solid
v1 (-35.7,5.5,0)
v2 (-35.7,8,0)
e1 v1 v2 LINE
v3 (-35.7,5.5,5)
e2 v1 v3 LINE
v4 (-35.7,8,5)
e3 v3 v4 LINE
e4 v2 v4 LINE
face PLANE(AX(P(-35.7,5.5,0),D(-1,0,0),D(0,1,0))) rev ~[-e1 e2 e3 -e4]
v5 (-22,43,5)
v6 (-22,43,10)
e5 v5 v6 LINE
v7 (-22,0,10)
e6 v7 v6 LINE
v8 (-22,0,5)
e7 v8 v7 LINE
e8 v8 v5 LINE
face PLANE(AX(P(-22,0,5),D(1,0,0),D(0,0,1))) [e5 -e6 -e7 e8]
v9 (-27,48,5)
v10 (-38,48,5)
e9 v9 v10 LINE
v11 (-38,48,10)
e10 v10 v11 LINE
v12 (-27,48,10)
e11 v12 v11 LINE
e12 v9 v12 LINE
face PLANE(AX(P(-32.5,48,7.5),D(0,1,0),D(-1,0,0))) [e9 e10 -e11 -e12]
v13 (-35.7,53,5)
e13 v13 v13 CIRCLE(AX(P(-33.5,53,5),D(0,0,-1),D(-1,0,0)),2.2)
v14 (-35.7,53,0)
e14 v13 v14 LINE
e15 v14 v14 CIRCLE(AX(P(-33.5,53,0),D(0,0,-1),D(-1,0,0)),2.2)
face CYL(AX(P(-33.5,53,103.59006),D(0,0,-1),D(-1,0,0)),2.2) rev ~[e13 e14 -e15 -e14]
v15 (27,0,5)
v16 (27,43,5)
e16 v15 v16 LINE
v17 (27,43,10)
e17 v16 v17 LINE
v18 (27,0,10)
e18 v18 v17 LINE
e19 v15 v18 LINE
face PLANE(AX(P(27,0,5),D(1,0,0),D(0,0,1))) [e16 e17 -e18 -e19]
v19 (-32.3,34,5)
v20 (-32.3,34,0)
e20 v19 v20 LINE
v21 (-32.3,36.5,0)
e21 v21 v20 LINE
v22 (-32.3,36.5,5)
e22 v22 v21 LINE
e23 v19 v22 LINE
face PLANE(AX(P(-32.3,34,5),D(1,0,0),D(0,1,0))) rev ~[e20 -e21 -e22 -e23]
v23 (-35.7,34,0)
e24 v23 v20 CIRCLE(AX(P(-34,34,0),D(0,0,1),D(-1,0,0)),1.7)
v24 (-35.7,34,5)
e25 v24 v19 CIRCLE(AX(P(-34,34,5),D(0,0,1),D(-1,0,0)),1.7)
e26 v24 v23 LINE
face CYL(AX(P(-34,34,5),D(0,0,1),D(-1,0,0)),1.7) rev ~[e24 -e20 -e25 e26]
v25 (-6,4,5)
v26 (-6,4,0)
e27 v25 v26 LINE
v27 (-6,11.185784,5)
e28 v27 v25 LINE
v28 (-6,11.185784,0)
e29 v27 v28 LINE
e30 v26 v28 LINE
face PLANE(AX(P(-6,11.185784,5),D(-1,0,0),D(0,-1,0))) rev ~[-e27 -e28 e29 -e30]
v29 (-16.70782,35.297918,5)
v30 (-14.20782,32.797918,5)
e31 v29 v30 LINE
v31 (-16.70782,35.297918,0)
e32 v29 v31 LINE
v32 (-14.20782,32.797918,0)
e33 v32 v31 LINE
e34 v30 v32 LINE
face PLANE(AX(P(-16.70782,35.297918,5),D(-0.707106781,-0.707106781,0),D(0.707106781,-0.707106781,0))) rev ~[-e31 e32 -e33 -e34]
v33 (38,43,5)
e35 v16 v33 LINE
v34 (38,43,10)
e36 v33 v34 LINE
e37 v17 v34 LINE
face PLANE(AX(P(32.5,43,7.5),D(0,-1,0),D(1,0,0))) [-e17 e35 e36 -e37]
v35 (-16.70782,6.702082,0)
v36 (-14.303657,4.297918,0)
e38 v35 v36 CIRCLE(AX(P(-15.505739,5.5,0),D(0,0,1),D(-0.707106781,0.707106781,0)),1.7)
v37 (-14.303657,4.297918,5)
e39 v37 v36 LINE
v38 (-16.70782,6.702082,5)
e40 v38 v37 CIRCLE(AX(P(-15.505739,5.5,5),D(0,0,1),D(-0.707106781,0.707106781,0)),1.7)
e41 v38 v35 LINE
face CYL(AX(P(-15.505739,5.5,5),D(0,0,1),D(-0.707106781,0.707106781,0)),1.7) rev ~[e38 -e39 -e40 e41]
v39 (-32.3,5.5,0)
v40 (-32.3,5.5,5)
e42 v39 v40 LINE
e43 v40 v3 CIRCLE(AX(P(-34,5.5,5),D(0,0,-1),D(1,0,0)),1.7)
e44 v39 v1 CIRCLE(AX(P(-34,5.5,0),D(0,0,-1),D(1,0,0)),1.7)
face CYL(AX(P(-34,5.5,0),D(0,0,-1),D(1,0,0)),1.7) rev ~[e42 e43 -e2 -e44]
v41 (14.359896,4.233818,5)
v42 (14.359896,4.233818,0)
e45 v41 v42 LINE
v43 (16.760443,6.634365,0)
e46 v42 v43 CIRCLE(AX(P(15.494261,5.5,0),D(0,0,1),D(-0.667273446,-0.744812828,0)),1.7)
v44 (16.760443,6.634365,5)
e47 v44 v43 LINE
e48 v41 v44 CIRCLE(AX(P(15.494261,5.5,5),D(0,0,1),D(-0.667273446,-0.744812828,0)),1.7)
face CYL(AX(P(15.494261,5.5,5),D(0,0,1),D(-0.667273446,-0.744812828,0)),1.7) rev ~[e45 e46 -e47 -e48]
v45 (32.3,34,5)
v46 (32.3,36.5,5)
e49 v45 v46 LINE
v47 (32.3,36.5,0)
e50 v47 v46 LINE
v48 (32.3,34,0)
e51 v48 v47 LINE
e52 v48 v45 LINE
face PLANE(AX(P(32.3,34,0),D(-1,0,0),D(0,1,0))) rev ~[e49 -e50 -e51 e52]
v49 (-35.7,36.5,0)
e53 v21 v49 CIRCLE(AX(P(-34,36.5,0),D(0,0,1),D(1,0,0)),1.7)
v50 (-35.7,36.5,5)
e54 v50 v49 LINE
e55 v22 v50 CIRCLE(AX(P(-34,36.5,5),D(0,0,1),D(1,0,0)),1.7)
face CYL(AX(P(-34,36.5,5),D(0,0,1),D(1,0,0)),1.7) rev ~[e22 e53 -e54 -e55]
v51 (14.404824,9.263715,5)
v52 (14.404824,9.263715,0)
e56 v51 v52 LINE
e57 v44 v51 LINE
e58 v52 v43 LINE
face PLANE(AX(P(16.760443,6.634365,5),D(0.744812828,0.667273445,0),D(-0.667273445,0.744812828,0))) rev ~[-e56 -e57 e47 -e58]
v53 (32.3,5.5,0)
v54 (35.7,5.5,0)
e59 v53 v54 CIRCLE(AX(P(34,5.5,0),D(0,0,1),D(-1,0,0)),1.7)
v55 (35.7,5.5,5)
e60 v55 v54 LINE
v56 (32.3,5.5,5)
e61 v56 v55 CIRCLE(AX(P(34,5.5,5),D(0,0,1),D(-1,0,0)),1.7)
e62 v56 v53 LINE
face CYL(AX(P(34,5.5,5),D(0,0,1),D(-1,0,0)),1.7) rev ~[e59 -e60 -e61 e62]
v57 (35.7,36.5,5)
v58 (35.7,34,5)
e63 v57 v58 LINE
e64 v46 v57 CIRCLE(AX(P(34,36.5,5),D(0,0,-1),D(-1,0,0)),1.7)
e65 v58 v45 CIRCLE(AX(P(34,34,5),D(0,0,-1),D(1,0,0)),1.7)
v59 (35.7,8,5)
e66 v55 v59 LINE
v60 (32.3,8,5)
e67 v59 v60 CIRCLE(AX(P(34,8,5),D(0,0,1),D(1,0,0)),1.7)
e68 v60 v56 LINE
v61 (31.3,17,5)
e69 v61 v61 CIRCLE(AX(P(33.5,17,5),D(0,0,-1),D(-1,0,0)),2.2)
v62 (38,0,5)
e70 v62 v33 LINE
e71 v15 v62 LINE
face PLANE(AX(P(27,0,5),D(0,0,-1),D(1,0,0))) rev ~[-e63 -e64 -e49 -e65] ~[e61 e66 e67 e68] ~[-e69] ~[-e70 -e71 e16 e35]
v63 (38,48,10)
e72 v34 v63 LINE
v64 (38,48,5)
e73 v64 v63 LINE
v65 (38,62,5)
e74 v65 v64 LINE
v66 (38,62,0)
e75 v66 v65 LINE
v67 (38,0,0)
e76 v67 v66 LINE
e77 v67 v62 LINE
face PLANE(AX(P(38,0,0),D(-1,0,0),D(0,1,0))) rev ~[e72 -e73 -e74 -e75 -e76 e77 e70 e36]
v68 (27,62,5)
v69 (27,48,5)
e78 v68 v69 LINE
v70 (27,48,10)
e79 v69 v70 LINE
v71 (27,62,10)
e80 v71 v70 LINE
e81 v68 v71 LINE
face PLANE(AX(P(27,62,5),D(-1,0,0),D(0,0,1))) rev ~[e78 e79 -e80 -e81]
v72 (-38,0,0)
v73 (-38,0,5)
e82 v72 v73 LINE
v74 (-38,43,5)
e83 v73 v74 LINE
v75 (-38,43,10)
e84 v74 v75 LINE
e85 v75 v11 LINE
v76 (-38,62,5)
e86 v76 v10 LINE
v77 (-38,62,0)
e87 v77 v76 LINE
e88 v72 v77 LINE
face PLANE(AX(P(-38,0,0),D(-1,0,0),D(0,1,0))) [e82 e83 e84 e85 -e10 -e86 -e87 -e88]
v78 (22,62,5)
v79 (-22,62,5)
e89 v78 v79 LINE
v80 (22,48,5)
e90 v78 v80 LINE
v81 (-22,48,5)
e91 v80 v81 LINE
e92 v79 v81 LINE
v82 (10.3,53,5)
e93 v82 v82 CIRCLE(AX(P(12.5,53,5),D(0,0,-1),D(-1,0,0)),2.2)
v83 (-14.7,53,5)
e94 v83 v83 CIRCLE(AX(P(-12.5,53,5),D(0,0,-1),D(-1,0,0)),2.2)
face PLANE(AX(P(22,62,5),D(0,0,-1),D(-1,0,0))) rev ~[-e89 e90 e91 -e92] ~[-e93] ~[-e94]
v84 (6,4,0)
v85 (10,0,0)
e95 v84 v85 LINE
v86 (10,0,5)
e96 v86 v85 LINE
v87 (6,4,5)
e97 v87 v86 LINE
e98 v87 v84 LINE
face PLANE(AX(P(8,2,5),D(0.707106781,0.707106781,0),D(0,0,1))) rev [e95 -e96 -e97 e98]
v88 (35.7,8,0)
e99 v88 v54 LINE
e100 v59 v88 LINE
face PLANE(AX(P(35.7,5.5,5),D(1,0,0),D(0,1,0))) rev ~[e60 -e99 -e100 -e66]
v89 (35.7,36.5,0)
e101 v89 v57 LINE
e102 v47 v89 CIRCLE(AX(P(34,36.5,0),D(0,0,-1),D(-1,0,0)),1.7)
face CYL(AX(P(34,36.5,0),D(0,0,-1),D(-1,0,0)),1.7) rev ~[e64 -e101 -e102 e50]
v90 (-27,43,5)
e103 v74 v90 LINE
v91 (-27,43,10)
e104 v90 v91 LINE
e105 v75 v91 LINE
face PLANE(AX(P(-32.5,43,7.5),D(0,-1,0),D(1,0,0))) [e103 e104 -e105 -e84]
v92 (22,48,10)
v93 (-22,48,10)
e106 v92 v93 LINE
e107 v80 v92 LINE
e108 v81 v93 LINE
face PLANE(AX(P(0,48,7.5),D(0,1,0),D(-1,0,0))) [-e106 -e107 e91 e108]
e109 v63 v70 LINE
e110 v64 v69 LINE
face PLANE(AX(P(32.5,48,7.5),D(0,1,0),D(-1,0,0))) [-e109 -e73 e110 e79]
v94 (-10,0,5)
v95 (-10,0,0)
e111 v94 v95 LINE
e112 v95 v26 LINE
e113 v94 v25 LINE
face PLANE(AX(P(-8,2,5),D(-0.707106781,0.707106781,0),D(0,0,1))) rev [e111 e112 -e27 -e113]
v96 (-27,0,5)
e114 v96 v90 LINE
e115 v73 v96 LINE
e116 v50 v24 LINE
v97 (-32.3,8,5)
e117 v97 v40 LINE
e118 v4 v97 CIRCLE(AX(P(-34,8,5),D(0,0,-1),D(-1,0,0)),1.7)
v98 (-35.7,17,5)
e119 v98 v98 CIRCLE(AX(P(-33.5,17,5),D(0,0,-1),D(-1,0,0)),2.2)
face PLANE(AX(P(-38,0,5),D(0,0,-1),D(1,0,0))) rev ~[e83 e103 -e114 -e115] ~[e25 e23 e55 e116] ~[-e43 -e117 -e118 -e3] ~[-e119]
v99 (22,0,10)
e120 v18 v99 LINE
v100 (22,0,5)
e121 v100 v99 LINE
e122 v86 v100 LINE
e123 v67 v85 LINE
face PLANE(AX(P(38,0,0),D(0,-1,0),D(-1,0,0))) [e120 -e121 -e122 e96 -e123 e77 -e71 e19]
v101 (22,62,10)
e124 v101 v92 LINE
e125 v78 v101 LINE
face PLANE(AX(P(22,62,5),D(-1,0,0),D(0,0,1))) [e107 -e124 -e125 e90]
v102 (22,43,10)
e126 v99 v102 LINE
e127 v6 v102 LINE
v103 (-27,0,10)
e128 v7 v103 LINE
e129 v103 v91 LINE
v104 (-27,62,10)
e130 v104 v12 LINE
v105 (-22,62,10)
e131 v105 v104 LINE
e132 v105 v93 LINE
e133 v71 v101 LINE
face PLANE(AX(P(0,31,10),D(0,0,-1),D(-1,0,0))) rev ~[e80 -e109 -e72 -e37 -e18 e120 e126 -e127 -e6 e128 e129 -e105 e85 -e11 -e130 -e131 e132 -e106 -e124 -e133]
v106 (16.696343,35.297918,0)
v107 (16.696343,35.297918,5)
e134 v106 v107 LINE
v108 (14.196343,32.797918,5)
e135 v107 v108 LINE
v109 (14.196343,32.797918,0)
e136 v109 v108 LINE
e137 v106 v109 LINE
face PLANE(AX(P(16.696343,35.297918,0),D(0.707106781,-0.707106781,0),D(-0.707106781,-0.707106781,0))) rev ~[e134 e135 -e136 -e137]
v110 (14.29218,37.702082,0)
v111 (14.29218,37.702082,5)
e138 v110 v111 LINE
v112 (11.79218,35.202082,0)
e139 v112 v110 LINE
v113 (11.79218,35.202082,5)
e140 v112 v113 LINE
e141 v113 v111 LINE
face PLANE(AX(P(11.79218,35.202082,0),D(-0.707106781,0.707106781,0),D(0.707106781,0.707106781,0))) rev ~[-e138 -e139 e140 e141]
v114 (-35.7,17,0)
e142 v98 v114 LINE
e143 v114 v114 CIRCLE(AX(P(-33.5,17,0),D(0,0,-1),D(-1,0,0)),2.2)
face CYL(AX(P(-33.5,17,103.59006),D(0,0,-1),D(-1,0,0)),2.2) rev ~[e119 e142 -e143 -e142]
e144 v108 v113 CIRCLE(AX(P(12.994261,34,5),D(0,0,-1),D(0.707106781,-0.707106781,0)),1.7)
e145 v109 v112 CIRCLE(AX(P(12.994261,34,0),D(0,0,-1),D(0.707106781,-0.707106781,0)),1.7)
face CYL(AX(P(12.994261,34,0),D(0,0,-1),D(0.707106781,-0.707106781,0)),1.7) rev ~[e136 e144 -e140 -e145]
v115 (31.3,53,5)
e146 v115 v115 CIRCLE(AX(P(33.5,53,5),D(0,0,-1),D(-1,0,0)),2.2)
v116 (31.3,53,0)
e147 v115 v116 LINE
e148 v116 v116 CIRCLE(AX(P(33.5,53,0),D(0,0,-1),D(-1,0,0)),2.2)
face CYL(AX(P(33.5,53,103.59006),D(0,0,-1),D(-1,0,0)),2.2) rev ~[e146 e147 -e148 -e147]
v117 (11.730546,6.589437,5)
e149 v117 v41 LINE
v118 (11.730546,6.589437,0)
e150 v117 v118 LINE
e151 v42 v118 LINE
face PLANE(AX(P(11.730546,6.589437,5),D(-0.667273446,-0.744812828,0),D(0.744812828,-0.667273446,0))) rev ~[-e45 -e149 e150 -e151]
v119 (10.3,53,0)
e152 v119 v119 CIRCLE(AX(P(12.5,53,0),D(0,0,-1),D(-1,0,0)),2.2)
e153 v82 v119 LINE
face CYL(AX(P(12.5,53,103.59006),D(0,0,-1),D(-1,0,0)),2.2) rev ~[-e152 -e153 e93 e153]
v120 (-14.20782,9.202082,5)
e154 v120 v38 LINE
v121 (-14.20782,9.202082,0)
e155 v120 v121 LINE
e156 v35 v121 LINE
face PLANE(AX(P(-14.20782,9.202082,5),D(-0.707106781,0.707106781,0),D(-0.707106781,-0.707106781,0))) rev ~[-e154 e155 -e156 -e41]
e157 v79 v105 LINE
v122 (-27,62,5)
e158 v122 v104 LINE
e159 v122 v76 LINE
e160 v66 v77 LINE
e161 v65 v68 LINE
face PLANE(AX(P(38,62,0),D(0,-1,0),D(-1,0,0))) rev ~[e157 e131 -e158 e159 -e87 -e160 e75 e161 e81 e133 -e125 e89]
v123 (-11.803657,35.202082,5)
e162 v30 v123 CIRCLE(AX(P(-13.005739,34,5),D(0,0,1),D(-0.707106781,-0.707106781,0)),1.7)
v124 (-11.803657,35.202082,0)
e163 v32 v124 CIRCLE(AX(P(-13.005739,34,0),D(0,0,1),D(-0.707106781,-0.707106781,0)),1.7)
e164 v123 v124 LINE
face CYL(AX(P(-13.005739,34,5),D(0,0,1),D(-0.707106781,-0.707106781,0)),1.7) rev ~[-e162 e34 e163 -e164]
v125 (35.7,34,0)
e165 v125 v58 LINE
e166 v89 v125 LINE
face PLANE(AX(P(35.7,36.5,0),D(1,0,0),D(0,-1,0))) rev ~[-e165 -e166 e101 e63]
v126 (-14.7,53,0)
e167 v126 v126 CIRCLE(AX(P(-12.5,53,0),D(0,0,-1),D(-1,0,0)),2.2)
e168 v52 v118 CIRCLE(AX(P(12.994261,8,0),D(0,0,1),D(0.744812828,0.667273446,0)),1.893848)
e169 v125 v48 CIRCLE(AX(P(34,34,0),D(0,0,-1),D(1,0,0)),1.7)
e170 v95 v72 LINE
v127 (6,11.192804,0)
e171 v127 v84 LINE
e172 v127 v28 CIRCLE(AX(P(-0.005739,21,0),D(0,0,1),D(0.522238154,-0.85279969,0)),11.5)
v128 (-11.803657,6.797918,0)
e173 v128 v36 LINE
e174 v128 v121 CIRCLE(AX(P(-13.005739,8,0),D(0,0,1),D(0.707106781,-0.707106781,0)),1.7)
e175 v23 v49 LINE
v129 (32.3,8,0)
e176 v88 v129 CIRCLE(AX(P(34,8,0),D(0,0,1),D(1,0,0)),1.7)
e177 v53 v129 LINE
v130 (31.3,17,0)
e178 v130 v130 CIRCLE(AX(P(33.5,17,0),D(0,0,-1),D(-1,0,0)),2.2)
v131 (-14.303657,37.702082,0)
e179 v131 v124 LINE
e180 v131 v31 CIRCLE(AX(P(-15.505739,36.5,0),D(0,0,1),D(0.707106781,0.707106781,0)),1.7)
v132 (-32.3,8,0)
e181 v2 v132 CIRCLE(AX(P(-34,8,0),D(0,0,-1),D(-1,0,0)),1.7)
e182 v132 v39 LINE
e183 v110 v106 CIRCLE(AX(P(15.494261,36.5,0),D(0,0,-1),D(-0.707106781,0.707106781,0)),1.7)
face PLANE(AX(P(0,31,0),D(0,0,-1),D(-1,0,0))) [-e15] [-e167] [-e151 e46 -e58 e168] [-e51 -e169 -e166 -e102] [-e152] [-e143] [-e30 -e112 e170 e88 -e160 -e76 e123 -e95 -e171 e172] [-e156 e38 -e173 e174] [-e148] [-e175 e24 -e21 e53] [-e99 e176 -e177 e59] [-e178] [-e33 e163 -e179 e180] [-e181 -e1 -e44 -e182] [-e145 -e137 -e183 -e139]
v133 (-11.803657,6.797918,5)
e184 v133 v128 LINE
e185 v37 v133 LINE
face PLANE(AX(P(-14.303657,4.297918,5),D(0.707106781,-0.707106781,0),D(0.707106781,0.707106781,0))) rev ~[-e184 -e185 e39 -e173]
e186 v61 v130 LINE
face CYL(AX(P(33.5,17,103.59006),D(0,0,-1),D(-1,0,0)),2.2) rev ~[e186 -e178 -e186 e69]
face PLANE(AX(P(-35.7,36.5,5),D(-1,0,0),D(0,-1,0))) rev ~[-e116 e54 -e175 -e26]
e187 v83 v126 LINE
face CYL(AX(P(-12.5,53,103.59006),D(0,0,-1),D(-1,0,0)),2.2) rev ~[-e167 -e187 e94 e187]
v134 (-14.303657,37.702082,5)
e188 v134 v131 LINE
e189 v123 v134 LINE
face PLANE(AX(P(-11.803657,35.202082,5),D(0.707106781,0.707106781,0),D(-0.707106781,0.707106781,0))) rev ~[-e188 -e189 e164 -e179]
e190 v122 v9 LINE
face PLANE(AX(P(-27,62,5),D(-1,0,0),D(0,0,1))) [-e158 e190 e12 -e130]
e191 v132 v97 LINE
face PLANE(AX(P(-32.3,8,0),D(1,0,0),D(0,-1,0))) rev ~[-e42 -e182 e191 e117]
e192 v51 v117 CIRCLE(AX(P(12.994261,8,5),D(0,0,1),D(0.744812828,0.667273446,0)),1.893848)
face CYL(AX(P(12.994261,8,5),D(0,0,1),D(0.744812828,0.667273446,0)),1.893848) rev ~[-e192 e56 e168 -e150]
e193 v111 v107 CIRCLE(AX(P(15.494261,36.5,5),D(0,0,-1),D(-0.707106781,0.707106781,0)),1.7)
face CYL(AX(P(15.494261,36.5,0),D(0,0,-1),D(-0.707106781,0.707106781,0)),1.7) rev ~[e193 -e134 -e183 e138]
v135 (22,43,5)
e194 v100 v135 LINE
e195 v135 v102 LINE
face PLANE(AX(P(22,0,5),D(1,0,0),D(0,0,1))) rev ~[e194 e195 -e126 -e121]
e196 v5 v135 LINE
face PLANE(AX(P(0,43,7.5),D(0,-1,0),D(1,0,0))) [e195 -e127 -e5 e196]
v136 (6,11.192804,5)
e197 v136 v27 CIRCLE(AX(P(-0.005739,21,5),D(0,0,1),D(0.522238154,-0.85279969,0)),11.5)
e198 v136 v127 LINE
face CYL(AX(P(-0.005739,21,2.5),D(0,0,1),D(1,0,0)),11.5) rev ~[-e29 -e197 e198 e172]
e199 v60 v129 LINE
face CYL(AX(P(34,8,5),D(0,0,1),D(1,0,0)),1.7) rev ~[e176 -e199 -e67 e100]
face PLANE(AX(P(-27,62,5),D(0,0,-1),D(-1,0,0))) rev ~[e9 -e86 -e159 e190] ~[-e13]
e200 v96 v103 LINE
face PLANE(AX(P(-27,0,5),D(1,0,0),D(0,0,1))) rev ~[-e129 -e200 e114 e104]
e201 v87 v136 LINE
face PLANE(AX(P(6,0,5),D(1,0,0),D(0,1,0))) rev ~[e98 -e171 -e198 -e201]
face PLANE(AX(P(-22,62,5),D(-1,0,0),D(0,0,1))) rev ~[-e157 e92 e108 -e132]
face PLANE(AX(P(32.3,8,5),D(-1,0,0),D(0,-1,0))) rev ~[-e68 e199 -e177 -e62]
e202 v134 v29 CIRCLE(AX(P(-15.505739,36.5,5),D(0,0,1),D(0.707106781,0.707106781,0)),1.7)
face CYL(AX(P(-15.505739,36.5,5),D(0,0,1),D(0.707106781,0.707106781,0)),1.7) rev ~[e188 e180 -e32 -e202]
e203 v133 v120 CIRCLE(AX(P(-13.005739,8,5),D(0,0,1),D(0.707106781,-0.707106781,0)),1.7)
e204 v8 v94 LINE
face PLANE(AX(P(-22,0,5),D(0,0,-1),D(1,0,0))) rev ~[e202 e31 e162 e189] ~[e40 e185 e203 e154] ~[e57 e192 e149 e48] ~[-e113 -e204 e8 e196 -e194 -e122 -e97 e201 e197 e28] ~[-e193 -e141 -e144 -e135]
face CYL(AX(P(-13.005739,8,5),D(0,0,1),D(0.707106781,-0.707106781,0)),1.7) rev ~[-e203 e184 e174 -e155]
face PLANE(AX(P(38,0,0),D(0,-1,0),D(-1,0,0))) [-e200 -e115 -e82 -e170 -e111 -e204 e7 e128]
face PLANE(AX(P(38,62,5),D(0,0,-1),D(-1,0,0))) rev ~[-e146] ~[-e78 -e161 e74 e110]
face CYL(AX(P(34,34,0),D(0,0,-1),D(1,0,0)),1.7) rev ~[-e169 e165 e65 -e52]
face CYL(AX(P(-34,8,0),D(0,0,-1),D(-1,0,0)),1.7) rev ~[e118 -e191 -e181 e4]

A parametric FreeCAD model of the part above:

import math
import FreeCAD as App
import Part
import Sketcher
from FreeCAD import Vector
Q = App.Units.Quantity


def edges_at(feature, points):
    """Names of the edges that pass closest to the given points."""
    edges = feature.Shape.Edges
    near = lambda p: min(range(len(edges)), key=lambda i: edges[i].distToShape(Part.Vertex(*p))[0])
    return sorted({f"Edge{near(p) + 1}" for p in points})


def add_polygon(sketch, points):
    """Adds a closed chain of lines whose ends are joined by coincident constraints."""
    first, n = sketch.GeometryCount, len(points)
    for a, b in zip(points, points[1:] + points[:1]):
        sketch.addGeometry(Part.LineSegment(App.Vector(*a, 0), App.Vector(*b, 0)), False)
    for i in range(n):
        sketch.addConstraint(Sketcher.Constraint("Coincident", first + i, 2, first + (i + 1) % n, 1))

doc = App.newDocument("Part")
params = doc.addObject("Spreadsheet::Sheet", "Params")
for row, (alias, value) in enumerate([
    ("sketch1_width", "76 mm"),
    ("sketch1_height", "62 mm"),
    ("pad1_length", "10 mm"),
    ("sketch2_width", "44 mm"),
    ("sketch2_height", "5 mm"),
    ("pocket1_length", "43 mm"),
    ("sketch3_radius", "11.5 mm"),
    ("sketch3_width", "12 mm"),
    ("sketch4_radius", "1.7 mm"),
    ("sketch5_radius", "1.7 mm"),
    ("sketch6_radius", "1.7 mm"),
    ("sketch7_radius", "1.7 mm"),
    ("sketch8_width", "11 mm"),
    ("sketch8_height", "5 mm"),
    ("pocket7_length", "43 mm"),
    ("sketch9_radius", "1.7 mm"),
    ("sketch9_height", "2.5 mm"),
    ("sketch10_width", "11 mm"),
    ("sketch10_height", "5 mm"),
    ("pocket9_length", "43 mm"),
    ("sketch11_radius", "1.7 mm"),
    ("sketch11_height", "2.5 mm"),
    ("sketch12_radius", "1.7 mm"),
    ("sketch12_height", "2.5 mm"),
    ("sketch13_radius", "1.7 mm"),
    ("sketch13_height", "2.5 mm"),
    ("sketch14_width", "11 mm"),
    ("sketch14_height", "5 mm"),
    ("pocket13_length", "14 mm"),
    ("sketch15_width", "11 mm"),
    ("sketch15_height", "5 mm"),
    ("pocket14_length", "14 mm"),
    ("sketch16_width", "44 mm"),
    ("sketch16_height", "5 mm"),
    ("pocket15_length", "14 mm"),
    ("sketch17_height", "5 mm"),
    ("sketch17_width", "11.5 mm"),
    ("groove_angle", "360 deg"),
    ("sketch18_diameter", "4.4 mm"),
    ("hole_diameter", "4.4 mm"),
    ("sketch19_diameter", "4.4 mm"),
    ("hole2_diameter", "4.4 mm"),
    ("sketch20_diameter", "4.4 mm"),
    ("hole3_diameter", "4.4 mm"),
    ("sketch21_diameter", "4.4 mm"),
    ("hole4_diameter", "4.4 mm"),
    ("sketch22_diameter", "4.4 mm"),
    ("hole5_diameter", "4.4 mm"),
    ("sketch23_diameter", "4.4 mm"),
    ("hole6_diameter", "4.4 mm"),
    ("chamfer_size", "4 mm"),
    ("chamfer2_size", "4 mm"),
], start=1):
    params.set(f"A{row}", alias)
    params.set(f"B{row}", "=" + value)
    params.setAlias(f"B{row}", alias)

body = doc.addObject("PartDesign::Body", "Body")

sketch1 = doc.addObject("Sketcher::SketchObject", "Sketch")
body.addObject(sketch1)
sketch1.AttachmentSupport = (doc.XY_Plane, [""])
sketch1.MapMode = "FlatFace"
add_polygon(sketch1, [(38, 62), (38, 0), (-38, 0), (-38, 62)])
sketch1.addConstraint([
    Sketcher.Constraint("Vertical", 0),
    Sketcher.Constraint("Horizontal", 1),
    Sketcher.Constraint("Vertical", 2),
    Sketcher.Constraint("Horizontal", 3),
    Sketcher.Constraint("Symmetric", 0, 2, 1, 2, -1, 1),
    Sketcher.Constraint("DistanceX", 1, 2, 1, 1, 76.0),
    Sketcher.Constraint("DistanceY", 0, 2, 0, 1, 62.0),
])
sketch1.setExpression("Constraints[9]", "Params.sketch1_width")
sketch1.setExpression("Constraints[10]", "Params.sketch1_height")
pad1 = doc.addObject("PartDesign::Pad", "Pad")
body.addObject(pad1)
pad1.Profile = sketch1
pad1.setExpression("Length", "Params.pad1_length")

sketch2 = doc.addObject("Sketcher::SketchObject", "Sketch001")
body.addObject(sketch2)
sketch2.AttachmentSupport = (doc.XZ_Plane, [""])
sketch2.MapMode = "FlatFace"
add_polygon(sketch2, [(-22, 10), (-22, 5), (22, 5), (22, 10)])
sketch2.addConstraint([
    Sketcher.Constraint("Vertical", 0),
    Sketcher.Constraint("Horizontal", 1),
    Sketcher.Constraint("Vertical", 2),
    Sketcher.Constraint("Horizontal", 3),
    Sketcher.Constraint("DistanceX", 1, 1, 1, 2, 44.0),
    Sketcher.Constraint("DistanceY", 0, 2, 0, 1, 5.0),
    Sketcher.Constraint("DistanceX", 0, 2, -1, 1, 22.0),
    Sketcher.Constraint("DistanceY", -1, 1, 0, 2, 5.0),
])
sketch2.setExpression("Constraints[8]", "Params.sketch2_width")
sketch2.setExpression("Constraints[9]", "Params.sketch2_height")
pocket1 = doc.addObject("PartDesign::Pocket", "Pocket")
body.addObject(pocket1)
pocket1.Profile = sketch2
pocket1.setExpression("Length", "Params.pocket1_length")

sketch3 = doc.addObject("Sketcher::SketchObject", "Sketch002")
body.addObject(sketch3)
sketch3.AttachmentSupport = (doc.XY_Plane, [""])
sketch3.MapMode = "FlatFace"
sketch3.AttachmentOffset = App.Placement(Vector(0, 0, 5), App.Rotation())
sketch3.addGeometry([
    Part.LineSegment(Vector(-6, 0, 0), Vector(6, 0, 0)),
    Part.LineSegment(Vector(6, 0, 0), Vector(6, 11, 0)),
    Part.ArcOfCircle(Part.Circle(Vector(0, 21, 0), Vector(0, 0, 1), 11), math.radians(-121), math.radians(-59)),
    Part.LineSegment(Vector(-6, 11, 0), Vector(-6, 0, 0)),
], False)
sketch3.addConstraint([
    Sketcher.Constraint("Coincident", 0, 2, 1, 1),
    Sketcher.Constraint("Coincident", 1, 2, 2, 2),
    Sketcher.Constraint("Coincident", 2, 1, 3, 1),
    Sketcher.Constraint("Coincident", 3, 2, 0, 1),
    Sketcher.Constraint("Horizontal", 0),
    Sketcher.Constraint("Vertical", 1),
    Sketcher.Constraint("Vertical", 3),
    Sketcher.Constraint("Symmetric", 0, 2, 3, 2, -1, 1),
    Sketcher.Constraint("Radius", 2, 11.5),
    Sketcher.Constraint("DistanceX", 0, 1, 0, 2, 12.0),
    Sketcher.Constraint("DistanceY", -1, 1, 2, 3, 21.0),
    Sketcher.Constraint("DistanceY", 1, 1, 1, 2, 11.192804),
])
sketch3.setExpression("Constraints[8]", "Params.sketch3_radius")
sketch3.setExpression("Constraints[9]", "Params.sketch3_width")
pocket2 = doc.addObject("PartDesign::Pocket", "Pocket001")
body.addObject(pocket2)
pocket2.Profile = sketch3
pocket2.Type = "ThroughAll"

sketch4 = doc.addObject("Sketcher::SketchObject", "Sketch003")
body.addObject(sketch4)
sketch4.AttachmentSupport = (doc.XY_Plane, [""])
sketch4.MapMode = "FlatFace"
sketch4.AttachmentOffset = App.Placement(Vector(0, 0, 5), App.Rotation())
sketch4.addGeometry([
    Part.LineSegment(Vector(-11.8, 35.2, 0), Vector(-14.3, 37.7, 0)),
    Part.ArcOfCircle(Part.Circle(Vector(-15.5, 36.5, 0), Vector(0, 0, 1), 1.7), math.radians(45), math.radians(225)),
    Part.LineSegment(Vector(-16.7, 35.3, 0), Vector(-14.2, 32.8, 0)),
    Part.ArcOfCircle(Part.Circle(Vector(-13, 34, 0), Vector(0, 0, 1), 1.7), math.radians(-135), math.radians(45)),
], False)
sketch4.addConstraint([
    Sketcher.Constraint("Tangent", 0, 2, 1, 1),
    Sketcher.Constraint("Tangent", 1, 2, 2, 1),
    Sketcher.Constraint("Tangent", 2, 2, 3, 1),
    Sketcher.Constraint("Tangent", 3, 2, 0, 1),
    Sketcher.Constraint("Equal", 1, 3),
    Sketcher.Constraint("Radius", 1, 1.7),
    Sketcher.Constraint("Angle", 0, Q("135 deg")),
    Sketcher.Constraint("DistanceY", -1, 1, 3, 3, 34.0),
    Sketcher.Constraint("DistanceY", -1, 1, 1, 3, 36.5),
    Sketcher.Constraint("DistanceX", 1, 3, -1, 1, 15.505739),
])
sketch4.setExpression("Constraints[5]", "Params.sketch4_radius")
pocket3 = doc.addObject("PartDesign::Pocket", "Pocket002")
body.addObject(pocket3)
pocket3.Profile = sketch4
pocket3.Type = "ThroughAll"

sketch5 = doc.addObject("Sketcher::SketchObject", "Sketch004")
body.addObject(sketch5)
sketch5.AttachmentSupport = (doc.XY_Plane, [""])
sketch5.MapMode = "FlatFace"
sketch5.AttachmentOffset = App.Placement(Vector(0, 0, 5), App.Rotation())
sketch5.addGeometry([
    Part.LineSegment(Vector(-14.2, 9.2, 0), Vector(-16.7, 6.7, 0)),
    Part.ArcOfCircle(Part.Circle(Vector(-15.5, 5.5, 0), Vector(0, 0, 1), 1.7), math.radians(135), math.radians(315)),
    Part.LineSegment(Vector(-14.3, 4.3, 0), Vector(-11.8, 6.8, 0)),
    Part.ArcOfCircle(Part.Circle(Vector(-13, 8, 0), Vector(0, 0, 1), 1.7), math.radians(-45), math.radians(135)),
], False)
sketch5.addConstraint([
    Sketcher.Constraint("Tangent", 0, 2, 1, 1),
    Sketcher.Constraint("Tangent", 1, 2, 2, 1),
    Sketcher.Constraint("Tangent", 2, 2, 3, 1),
    Sketcher.Constraint("Tangent", 3, 2, 0, 1),
    Sketcher.Constraint("Equal", 1, 3),
    Sketcher.Constraint("Radius", 1, 1.7),
    Sketcher.Constraint("Angle", 0, Q("-135 deg")),
    Sketcher.Constraint("DistanceY", -1, 1, 3, 3, 8.0),
    Sketcher.Constraint("DistanceY", -1, 1, 1, 3, 5.5),
    Sketcher.Constraint("DistanceX", 1, 3, -1, 1, 15.505739),
])
sketch5.setExpression("Constraints[5]", "Params.sketch5_radius")
pocket4 = doc.addObject("PartDesign::Pocket", "Pocket003")
body.addObject(pocket4)
pocket4.Profile = sketch5
pocket4.Type = "ThroughAll"

sketch6 = doc.addObject("Sketcher::SketchObject", "Sketch005")
body.addObject(sketch6)
sketch6.AttachmentSupport = (doc.XY_Plane, [""])
sketch6.MapMode = "FlatFace"
sketch6.AttachmentOffset = App.Placement(Vector(0, 0, 5), App.Rotation())
sketch6.addGeometry([
    Part.LineSegment(Vector(11.7, 6.6, 0), Vector(14.4, 4.2, 0)),
    Part.ArcOfCircle(Part.Circle(Vector(15.5, 5.5, 0), Vector(0, 0, 1), 1.7), math.radians(-132), math.radians(42)),
    Part.LineSegment(Vector(16.8, 6.6, 0), Vector(14.4, 9.3, 0)),
    Part.ArcOfCircle(Part.Circle(Vector(13, 8, 0), Vector(0, 0, 1), 1.9), math.radians(42), math.radians(228)),
], False)
sketch6.addConstraint([
    Sketcher.Constraint("Tangent", 0, 2, 1, 1),
    Sketcher.Constraint("Tangent", 1, 2, 2, 1),
    Sketcher.Constraint("Tangent", 2, 2, 3, 1),
    Sketcher.Constraint("Tangent", 3, 2, 0, 1),
    Sketcher.Constraint("Radius", 1, 1.7),
    Sketcher.Constraint("DistanceY", -1, 1, 3, 3, 8.0),
    Sketcher.Constraint("DistanceY", -1, 1, 1, 3, 5.5),
    Sketcher.Constraint("DistanceX", 3, 3, 1, 3, 2.5),
    Sketcher.Constraint("Radius", 3, 1.893848),
    Sketcher.Constraint("DistanceX", -1, 1, 1, 3, 15.494261),
])
sketch6.setExpression("Constraints[4]", "Params.sketch6_radius")
pocket5 = doc.addObject("PartDesign::Pocket", "Pocket004")
body.addObject(pocket5)
pocket5.Profile = sketch6
pocket5.Type = "ThroughAll"

sketch7 = doc.addObject("Sketcher::SketchObject", "Sketch006")
body.addObject(sketch7)
sketch7.AttachmentSupport = (doc.XY_Plane, [""])
sketch7.MapMode = "FlatFace"
sketch7.addGeometry([
    Part.LineSegment(Vector(16.7, 35.3, 0), Vector(14.2, 32.8, 0)),
    Part.ArcOfCircle(Part.Circle(Vector(13, 34, 0), Vector(0, 0, 1), 1.7), math.radians(135), math.radians(315)),
    Part.LineSegment(Vector(11.8, 35.2, 0), Vector(14.3, 37.7, 0)),
    Part.ArcOfCircle(Part.Circle(Vector(15.5, 36.5, 0), Vector(0, 0, 1), 1.7), math.radians(-45), math.radians(135)),
], False)
sketch7.addConstraint([
    Sketcher.Constraint("Tangent", 0, 2, 1, 2),
    Sketcher.Constraint("Tangent", 1, 1, 2, 1),
    Sketcher.Constraint("Tangent", 2, 2, 3, 2),
    Sketcher.Constraint("Tangent", 3, 1, 0, 1),
    Sketcher.Constraint("Equal", 1, 3),
    Sketcher.Constraint("Radius", 1, 1.7),
    Sketcher.Constraint("Angle", 0, Q("-135 deg")),
    Sketcher.Constraint("DistanceY", -1, 1, 1, 3, 34.0),
    Sketcher.Constraint("DistanceY", -1, 1, 3, 3, 36.5),
    Sketcher.Constraint("DistanceX", -1, 1, 1, 3, 12.994261),
])
sketch7.setExpression("Constraints[5]", "Params.sketch7_radius")
pocket6 = doc.addObject("PartDesign::Pocket", "Pocket005")
body.addObject(pocket6)
pocket6.Profile = sketch7
pocket6.Type = "ThroughAll"
pocket6.Reversed = True

sketch8 = doc.addObject("Sketcher::SketchObject", "Sketch007")
body.addObject(sketch8)
sketch8.AttachmentSupport = (doc.XZ_Plane, [""])
sketch8.MapMode = "FlatFace"
add_polygon(sketch8, [(27, 10), (27, 5), (38, 5), (38, 10)])
sketch8.addConstraint([
    Sketcher.Constraint("Vertical", 0),
    Sketcher.Constraint("Horizontal", 1),
    Sketcher.Constraint("Vertical", 2),
    Sketcher.Constraint("Horizontal", 3),
    Sketcher.Constraint("DistanceX", 1, 1, 1, 2, 11.0),
    Sketcher.Constraint("DistanceY", 0, 2, 0, 1, 5.0),
    Sketcher.Constraint("DistanceX", -1, 1, 0, 2, 27.0),
    Sketcher.Constraint("DistanceY", -1, 1, 0, 2, 5.0),
])
sketch8.setExpression("Constraints[8]", "Params.sketch8_width")
sketch8.setExpression("Constraints[9]", "Params.sketch8_height")
pocket7 = doc.addObject("PartDesign::Pocket", "Pocket006")
body.addObject(pocket7)
pocket7.Profile = sketch8
pocket7.setExpression("Length", "Params.pocket7_length")

sketch9 = doc.addObject("Sketcher::SketchObject", "Sketch008")
body.addObject(sketch9)
sketch9.AttachmentSupport = (doc.XY_Plane, [""])
sketch9.MapMode = "FlatFace"
sketch9.addGeometry([
    Part.LineSegment(Vector(32.3, 34, 0), Vector(32.3, 36.5, 0)),
    Part.ArcOfCircle(Part.Circle(Vector(34, 36.5, 0), Vector(0, 0, 1), 1.7), math.radians(0), math.radians(180)),
    Part.LineSegment(Vector(35.7, 36.5, 0), Vector(35.7, 34, 0)),
    Part.ArcOfCircle(Part.Circle(Vector(34, 34, 0), Vector(0, 0, 1), 1.7), math.radians(180), math.radians(360)),
], False)
sketch9.addConstraint([
    Sketcher.Constraint("Tangent", 0, 2, 1, 2),
    Sketcher.Constraint("Tangent", 1, 1, 2, 1),
    Sketcher.Constraint("Tangent", 2, 2, 3, 2),
    Sketcher.Constraint("Tangent", 3, 1, 0, 1),
    Sketcher.Constraint("Vertical", 0),
    Sketcher.Constraint("Vertical", 2),
    Sketcher.Constraint("Radius", 1, 1.7),
    Sketcher.Constraint("DistanceY", 0, 1, 0, 2, 2.5),
    Sketcher.Constraint("DistanceX", -1, 1, 1, 3, 34.0),
    Sketcher.Constraint("DistanceY", -1, 1, 3, 3, 34.0),
])
sketch9.setExpression("Constraints[6]", "Params.sketch9_radius")
sketch9.setExpression("Constraints[7]", "Params.sketch9_height")
pocket8 = doc.addObject("PartDesign::Pocket", "Pocket007")
body.addObject(pocket8)
pocket8.Profile = sketch9
pocket8.Type = "ThroughAll"
pocket8.Reversed = True

sketch10 = doc.addObject("Sketcher::SketchObject", "Sketch009")
body.addObject(sketch10)
sketch10.AttachmentSupport = (doc.XZ_Plane, [""])
sketch10.MapMode = "FlatFace"
add_polygon(sketch10, [(-38, 10), (-38, 5), (-27, 5), (-27, 10)])
sketch10.addConstraint([
    Sketcher.Constraint("Vertical", 0),
    Sketcher.Constraint("Horizontal", 1),
    Sketcher.Constraint("Vertical", 2),
    Sketcher.Constraint("Horizontal", 3),
    Sketcher.Constraint("DistanceX", 1, 1, 1, 2, 11.0),
    Sketcher.Constraint("DistanceY", 0, 2, 0, 1, 5.0),
    Sketcher.Constraint("DistanceX", 0, 2, -1, 1, 38.0),
    Sketcher.Constraint("DistanceY", -1, 1, 0, 2, 5.0),
])
sketch10.setExpression("Constraints[8]", "Params.sketch10_width")
sketch10.setExpression("Constraints[9]", "Params.sketch10_height")
pocket9 = doc.addObject("PartDesign::Pocket", "Pocket008")
body.addObject(pocket9)
pocket9.Profile = sketch10
pocket9.setExpression("Length", "Params.pocket9_length")

sketch11 = doc.addObject("Sketcher::SketchObject", "Sketch010")
body.addObject(sketch11)
sketch11.AttachmentSupport = (doc.XY_Plane, [""])
sketch11.MapMode = "FlatFace"
sketch11.AttachmentOffset = App.Placement(Vector(0, 0, 5), App.Rotation())
sketch11.addGeometry([
    Part.LineSegment(Vector(-35.7, 36.5, 0), Vector(-35.7, 34, 0)),
    Part.ArcOfCircle(Part.Circle(Vector(-34, 34, 0), Vector(0, 0, 1), 1.7), math.radians(180), math.radians(360)),
    Part.LineSegment(Vector(-32.3, 34, 0), Vector(-32.3, 36.5, 0)),
    Part.ArcOfCircle(Part.Circle(Vector(-34, 36.5, 0), Vector(0, 0, 1), 1.7), math.radians(0), math.radians(180)),
], False)
sketch11.addConstraint([
    Sketcher.Constraint("Tangent", 0, 2, 1, 1),
    Sketcher.Constraint("Tangent", 1, 2, 2, 1),
    Sketcher.Constraint("Tangent", 2, 2, 3, 1),
    Sketcher.Constraint("Tangent", 3, 2, 0, 1),
    Sketcher.Constraint("Vertical", 0),
    Sketcher.Constraint("Vertical", 2),
    Sketcher.Constraint("Radius", 1, 1.7),
    Sketcher.Constraint("DistanceY", 0, 2, 0, 1, 2.5),
    Sketcher.Constraint("DistanceX", 1, 3, -1, 1, 34.0),
    Sketcher.Constraint("DistanceY", -1, 1, 1, 3, 34.0),
])
sketch11.setExpression("Constraints[6]", "Params.sketch11_radius")
sketch11.setExpression("Constraints[7]", "Params.sketch11_height")
pocket10 = doc.addObject("PartDesign::Pocket", "Pocket009")
body.addObject(pocket10)
pocket10.Profile = sketch11
pocket10.Type = "ThroughAll"

sketch12 = doc.addObject("Sketcher::SketchObject", "Sketch011")
body.addObject(sketch12)
sketch12.AttachmentSupport = (doc.XY_Plane, [""])
sketch12.MapMode = "FlatFace"
sketch12.addGeometry([
    Part.LineSegment(Vector(-32.3, 8, 0), Vector(-32.3, 5.5, 0)),
    Part.ArcOfCircle(Part.Circle(Vector(-34, 5.5, 0), Vector(0, 0, 1), 1.7), math.radians(180), math.radians(360)),
    Part.LineSegment(Vector(-35.7, 5.5, 0), Vector(-35.7, 8, 0)),
    Part.ArcOfCircle(Part.Circle(Vector(-34, 8, 0), Vector(0, 0, 1), 1.7), math.radians(0), math.radians(180)),
], False)
sketch12.addConstraint([
    Sketcher.Constraint("Tangent", 0, 2, 1, 2),
    Sketcher.Constraint("Tangent", 1, 1, 2, 1),
    Sketcher.Constraint("Tangent", 2, 2, 3, 2),
    Sketcher.Constraint("Tangent", 3, 1, 0, 1),
    Sketcher.Constraint("Vertical", 0),
    Sketcher.Constraint("Vertical", 2),
    Sketcher.Constraint("Radius", 1, 1.7),
    Sketcher.Constraint("DistanceY", 0, 2, 0, 1, 2.5),
    Sketcher.Constraint("DistanceX", 1, 3, -1, 1, 34.0),
    Sketcher.Constraint("DistanceY", -1, 1, 3, 3, 8.0),
])
sketch12.setExpression("Constraints[6]", "Params.sketch12_radius")
sketch12.setExpression("Constraints[7]", "Params.sketch12_height")
pocket11 = doc.addObject("PartDesign::Pocket", "Pocket010")
body.addObject(pocket11)
pocket11.Profile = sketch12
pocket11.Type = "ThroughAll"
pocket11.Reversed = True

sketch13 = doc.addObject("Sketcher::SketchObject", "Sketch012")
body.addObject(sketch13)
sketch13.AttachmentSupport = (doc.XY_Plane, [""])
sketch13.MapMode = "FlatFace"
sketch13.AttachmentOffset = App.Placement(Vector(0, 0, 5), App.Rotation())
sketch13.addGeometry([
    Part.LineSegment(Vector(35.7, 5.5, 0), Vector(35.7, 8, 0)),
    Part.ArcOfCircle(Part.Circle(Vector(34, 8, 0), Vector(0, 0, 1), 1.7), math.radians(0), math.radians(180)),
    Part.LineSegment(Vector(32.3, 8, 0), Vector(32.3, 5.5, 0)),
    Part.ArcOfCircle(Part.Circle(Vector(34, 5.5, 0), Vector(0, 0, 1), 1.7), math.radians(180), math.radians(360)),
], False)
sketch13.addConstraint([
    Sketcher.Constraint("Tangent", 0, 2, 1, 1),
    Sketcher.Constraint("Tangent", 1, 2, 2, 1),
    Sketcher.Constraint("Tangent", 2, 2, 3, 1),
    Sketcher.Constraint("Tangent", 3, 2, 0, 1),
    Sketcher.Constraint("Vertical", 0),
    Sketcher.Constraint("Vertical", 2),
    Sketcher.Constraint("Radius", 1, 1.7),
    Sketcher.Constraint("DistanceY", 0, 1, 0, 2, 2.5),
    Sketcher.Constraint("DistanceX", -1, 1, 1, 3, 34.0),
    Sketcher.Constraint("DistanceY", -1, 1, 1, 3, 8.0),
])
sketch13.setExpression("Constraints[6]", "Params.sketch13_radius")
sketch13.setExpression("Constraints[7]", "Params.sketch13_height")
pocket12 = doc.addObject("PartDesign::Pocket", "Pocket011")
body.addObject(pocket12)
pocket12.Profile = sketch13
pocket12.Type = "ThroughAll"

sketch14 = doc.addObject("Sketcher::SketchObject", "Sketch013")
body.addObject(sketch14)
sketch14.AttachmentSupport = (doc.XZ_Plane, [""])
sketch14.MapMode = "FlatFace"
sketch14.AttachmentOffset = App.Placement(Vector(0, 0, -62), App.Rotation())
add_polygon(sketch14, [(38, 10), (38, 5), (27, 5), (27, 10)])
sketch14.addConstraint([
    Sketcher.Constraint("Vertical", 0),
    Sketcher.Constraint("Horizontal", 1),
    Sketcher.Constraint("Vertical", 2),
    Sketcher.Constraint("Horizontal", 3),
    Sketcher.Constraint("DistanceX", 1, 2, 1, 1, 11.0),
    Sketcher.Constraint("DistanceY", 0, 2, 0, 1, 5.0),
    Sketcher.Constraint("DistanceX", -1, 1, 0, 2, 38.0),
    Sketcher.Constraint("DistanceY", -1, 1, 0, 2, 5.0),
])
sketch14.setExpression("Constraints[8]", "Params.sketch14_width")
sketch14.setExpression("Constraints[9]", "Params.sketch14_height")
pocket13 = doc.addObject("PartDesign::Pocket", "Pocket012")
body.addObject(pocket13)
pocket13.Profile = sketch14
pocket13.setExpression("Length", "Params.pocket13_length")
pocket13.Reversed = True

sketch15 = doc.addObject("Sketcher::SketchObject", "Sketch014")
body.addObject(sketch15)
sketch15.AttachmentSupport = (doc.XZ_Plane, [""])
sketch15.MapMode = "FlatFace"
sketch15.AttachmentOffset = App.Placement(Vector(0, 0, -62), App.Rotation())
add_polygon(sketch15, [(-27, 10), (-27, 5), (-38, 5), (-38, 10)])
sketch15.addConstraint([
    Sketcher.Constraint("Vertical", 0),
    Sketcher.Constraint("Horizontal", 1),
    Sketcher.Constraint("Vertical", 2),
    Sketcher.Constraint("Horizontal", 3),
    Sketcher.Constraint("DistanceX", 1, 2, 1, 1, 11.0),
    Sketcher.Constraint("DistanceY", 0, 2, 0, 1, 5.0),
    Sketcher.Constraint("DistanceX", 0, 2, -1, 1, 27.0),
    Sketcher.Constraint("DistanceY", -1, 1, 0, 2, 5.0),
])
sketch15.setExpression("Constraints[8]", "Params.sketch15_width")
sketch15.setExpression("Constraints[9]", "Params.sketch15_height")
pocket14 = doc.addObject("PartDesign::Pocket", "Pocket013")
body.addObject(pocket14)
pocket14.Profile = sketch15
pocket14.setExpression("Length", "Params.pocket14_length")
pocket14.Reversed = True

sketch16 = doc.addObject("Sketcher::SketchObject", "Sketch015")
body.addObject(sketch16)
sketch16.AttachmentSupport = (doc.XZ_Plane, [""])
sketch16.MapMode = "FlatFace"
sketch16.AttachmentOffset = App.Placement(Vector(0, 0, -62), App.Rotation())
add_polygon(sketch16, [(22, 10), (22, 5), (-22, 5), (-22, 10)])
sketch16.addConstraint([
    Sketcher.Constraint("Vertical", 0),
    Sketcher.Constraint("Horizontal", 1),
    Sketcher.Constraint("Vertical", 2),
    Sketcher.Constraint("Horizontal", 3),
    Sketcher.Constraint("DistanceX", 1, 2, 1, 1, 44.0),
    Sketcher.Constraint("DistanceY", 0, 2, 0, 1, 5.0),
    Sketcher.Constraint("DistanceX", -1, 1, 0, 2, 22.0),
    Sketcher.Constraint("DistanceY", -1, 1, 0, 2, 5.0),
])
sketch16.setExpression("Constraints[8]", "Params.sketch16_width")
sketch16.setExpression("Constraints[9]", "Params.sketch16_height")
pocket15 = doc.addObject("PartDesign::Pocket", "Pocket014")
body.addObject(pocket15)
pocket15.Profile = sketch16
pocket15.setExpression("Length", "Params.pocket15_length")
pocket15.Reversed = True

sketch17 = doc.addObject("Sketcher::SketchObject", "Sketch016")
body.addObject(sketch17)
sketch17.AttachmentSupport = (doc.XZ_Plane, [""])
sketch17.MapMode = "FlatFace"
sketch17.AttachmentOffset = App.Placement(Vector(0, 0, -21), App.Rotation())
add_polygon(sketch17, [(11, 5), (11, 0), (0, 0), (0, 5)])
sketch17.addGeometry(Part.LineSegment(Vector(0, 0, 0), Vector(0, 5, 0)), True)
sketch17.addConstraint([
    Sketcher.Constraint("Vertical", 0),
    Sketcher.Constraint("Horizontal", 1),
    Sketcher.Constraint("Vertical", 2),
    Sketcher.Constraint("Horizontal", 3),
    Sketcher.Constraint("Vertical", 4),
    Sketcher.Constraint("Coincident", 4, 1, 1, 2),
    Sketcher.Constraint("PointOnObject", 0, 2, -1),
    Sketcher.Constraint("Horizontal", 3, 2, 4, 2),
    Sketcher.Constraint("DistanceY", 0, 2, 0, 1, 5.0),
    Sketcher.Constraint("DistanceX", 1, 2, 1, 1, 11.5),
    Sketcher.Constraint("DistanceX", -1, 1, 0, 2, 11.494261),
])
sketch17.setExpression("Constraints[12]", "Params.sketch17_height")
sketch17.setExpression("Constraints[13]", "Params.sketch17_width")
groove = doc.addObject("PartDesign::Groove", "Groove")
body.addObject(groove)
groove.Profile = sketch17
groove.ReferenceAxis = (sketch17, ["Axis0"])
groove.setExpression("Angle", "Params.groove_angle")

sketch18 = doc.addObject("Sketcher::SketchObject", "Sketch017")
body.addObject(sketch18)
sketch18.AttachmentSupport = (doc.XY_Plane, [""])
sketch18.MapMode = "FlatFace"
sketch18.AttachmentOffset = App.Placement(Vector(0, 0, 5), App.Rotation())
sketch18.addGeometry(Part.Circle(Vector(-33.5, 17, 0), Vector(0, 0, 1), 2.2), False)
sketch18.addConstraint([
    Sketcher.Constraint("Diameter", 0, 4.4),
    Sketcher.Constraint("DistanceY", -1, 1, 0, 3, 17.0),
    Sketcher.Constraint("DistanceX", 0, 3, -1, 1, 33.5),
])
sketch18.setExpression("Constraints[0]", "Params.sketch18_diameter")
doc.recompute()
hole = doc.addObject("PartDesign::Hole", "Hole")
body.addObject(hole)
hole.Profile = sketch18
hole.ThreadType = "None"
hole.setExpression("Diameter", "Params.hole_diameter")
hole.DepthType = "ThroughAll"

sketch19 = doc.addObject("Sketcher::SketchObject", "Sketch018")
body.addObject(sketch19)
sketch19.AttachmentSupport = (doc.XY_Plane, [""])
sketch19.MapMode = "FlatFace"
sketch19.AttachmentOffset = App.Placement(Vector(0, 0, 5), App.Rotation())
sketch19.addGeometry(Part.Circle(Vector(33.5, 17, 0), Vector(0, 0, 1), 2.2), False)
sketch19.addConstraint([
    Sketcher.Constraint("Diameter", 0, 4.4),
    Sketcher.Constraint("DistanceY", -1, 1, 0, 3, 17.0),
    Sketcher.Constraint("DistanceX", -1, 1, 0, 3, 33.5),
])
sketch19.setExpression("Constraints[0]", "Params.sketch19_diameter")
doc.recompute()
hole2 = doc.addObject("PartDesign::Hole", "Hole001")
body.addObject(hole2)
hole2.Profile = sketch19
hole2.ThreadType = "None"
hole2.setExpression("Diameter", "Params.hole2_diameter")
hole2.DepthType = "ThroughAll"

sketch20 = doc.addObject("Sketcher::SketchObject", "Sketch019")
body.addObject(sketch20)
sketch20.AttachmentSupport = (doc.XY_Plane, [""])
sketch20.MapMode = "FlatFace"
sketch20.AttachmentOffset = App.Placement(Vector(0, 0, 5), App.Rotation())
sketch20.addGeometry(Part.Circle(Vector(33.5, 53, 0), Vector(0, 0, 1), 2.2), False)
sketch20.addConstraint([
    Sketcher.Constraint("Diameter", 0, 4.4),
    Sketcher.Constraint("DistanceY", -1, 1, 0, 3, 53.0),
    Sketcher.Constraint("DistanceX", -1, 1, 0, 3, 33.5),
])
sketch20.setExpression("Constraints[0]", "Params.sketch20_diameter")
doc.recompute()
hole3 = doc.addObject("PartDesign::Hole", "Hole002")
body.addObject(hole3)
hole3.Profile = sketch20
hole3.ThreadType = "None"
hole3.setExpression("Diameter", "Params.hole3_diameter")
hole3.DepthType = "ThroughAll"

sketch21 = doc.addObject("Sketcher::SketchObject", "Sketch020")
body.addObject(sketch21)
sketch21.AttachmentSupport = (doc.XY_Plane, [""])
sketch21.MapMode = "FlatFace"
sketch21.AttachmentOffset = App.Placement(Vector(0, 0, 5), App.Rotation())
sketch21.addGeometry(Part.Circle(Vector(-33.5, 53, 0), Vector(0, 0, 1), 2.2), False)
sketch21.addConstraint([
    Sketcher.Constraint("Diameter", 0, 4.4),
    Sketcher.Constraint("DistanceY", -1, 1, 0, 3, 53.0),
    Sketcher.Constraint("DistanceX", 0, 3, -1, 1, 33.5),
])
sketch21.setExpression("Constraints[0]", "Params.sketch21_diameter")
doc.recompute()
hole4 = doc.addObject("PartDesign::Hole", "Hole003")
body.addObject(hole4)
hole4.Profile = sketch21
hole4.ThreadType = "None"
hole4.setExpression("Diameter", "Params.hole4_diameter")
hole4.DepthType = "ThroughAll"

sketch22 = doc.addObject("Sketcher::SketchObject", "Sketch021")
body.addObject(sketch22)
sketch22.AttachmentSupport = (doc.XY_Plane, [""])
sketch22.MapMode = "FlatFace"
sketch22.AttachmentOffset = App.Placement(Vector(0, 0, 5), App.Rotation())
sketch22.addGeometry(Part.Circle(Vector(-12.5, 53, 0), Vector(0, 0, 1), 2.2), False)
sketch22.addConstraint([
    Sketcher.Constraint("Diameter", 0, 4.4),
    Sketcher.Constraint("DistanceY", -1, 1, 0, 3, 53.0),
    Sketcher.Constraint("DistanceX", 0, 3, -1, 1, 12.5),
])
sketch22.setExpression("Constraints[0]", "Params.sketch22_diameter")
doc.recompute()
hole5 = doc.addObject("PartDesign::Hole", "Hole004")
body.addObject(hole5)
hole5.Profile = sketch22
hole5.ThreadType = "None"
hole5.setExpression("Diameter", "Params.hole5_diameter")
hole5.DepthType = "ThroughAll"

sketch23 = doc.addObject("Sketcher::SketchObject", "Sketch022")
body.addObject(sketch23)
sketch23.AttachmentSupport = (doc.XY_Plane, [""])
sketch23.MapMode = "FlatFace"
sketch23.AttachmentOffset = App.Placement(Vector(0, 0, 5), App.Rotation())
sketch23.addGeometry(Part.Circle(Vector(12.5, 53, 0), Vector(0, 0, 1), 2.2), False)
sketch23.addConstraint([
    Sketcher.Constraint("Diameter", 0, 4.4),
    Sketcher.Constraint("DistanceY", -1, 1, 0, 3, 53.0),
    Sketcher.Constraint("DistanceX", -1, 1, 0, 3, 12.5),
])
sketch23.setExpression("Constraints[0]", "Params.sketch23_diameter")
doc.recompute()
hole6 = doc.addObject("PartDesign::Hole", "Hole005")
body.addObject(hole6)
hole6.Profile = sketch23
hole6.ThreadType = "None"
hole6.setExpression("Diameter", "Params.hole6_diameter")
hole6.DepthType = "ThroughAll"
doc.recompute()

chamfer = doc.addObject("PartDesign::Chamfer", "Chamfer")
body.addObject(chamfer)
chamfer.Base = (hole6, edges_at(hole6, [(-6, 0, 2.5)]))
chamfer.setExpression("Size", "Params.chamfer_size")
doc.recompute()

chamfer2 = doc.addObject("PartDesign::Chamfer", "Chamfer001")
body.addObject(chamfer2)
chamfer2.Base = (chamfer, edges_at(chamfer, [(6, 0, 2.5)]))
chamfer2.setExpression("Size", "Params.chamfer2_size")

doc.recompute()
